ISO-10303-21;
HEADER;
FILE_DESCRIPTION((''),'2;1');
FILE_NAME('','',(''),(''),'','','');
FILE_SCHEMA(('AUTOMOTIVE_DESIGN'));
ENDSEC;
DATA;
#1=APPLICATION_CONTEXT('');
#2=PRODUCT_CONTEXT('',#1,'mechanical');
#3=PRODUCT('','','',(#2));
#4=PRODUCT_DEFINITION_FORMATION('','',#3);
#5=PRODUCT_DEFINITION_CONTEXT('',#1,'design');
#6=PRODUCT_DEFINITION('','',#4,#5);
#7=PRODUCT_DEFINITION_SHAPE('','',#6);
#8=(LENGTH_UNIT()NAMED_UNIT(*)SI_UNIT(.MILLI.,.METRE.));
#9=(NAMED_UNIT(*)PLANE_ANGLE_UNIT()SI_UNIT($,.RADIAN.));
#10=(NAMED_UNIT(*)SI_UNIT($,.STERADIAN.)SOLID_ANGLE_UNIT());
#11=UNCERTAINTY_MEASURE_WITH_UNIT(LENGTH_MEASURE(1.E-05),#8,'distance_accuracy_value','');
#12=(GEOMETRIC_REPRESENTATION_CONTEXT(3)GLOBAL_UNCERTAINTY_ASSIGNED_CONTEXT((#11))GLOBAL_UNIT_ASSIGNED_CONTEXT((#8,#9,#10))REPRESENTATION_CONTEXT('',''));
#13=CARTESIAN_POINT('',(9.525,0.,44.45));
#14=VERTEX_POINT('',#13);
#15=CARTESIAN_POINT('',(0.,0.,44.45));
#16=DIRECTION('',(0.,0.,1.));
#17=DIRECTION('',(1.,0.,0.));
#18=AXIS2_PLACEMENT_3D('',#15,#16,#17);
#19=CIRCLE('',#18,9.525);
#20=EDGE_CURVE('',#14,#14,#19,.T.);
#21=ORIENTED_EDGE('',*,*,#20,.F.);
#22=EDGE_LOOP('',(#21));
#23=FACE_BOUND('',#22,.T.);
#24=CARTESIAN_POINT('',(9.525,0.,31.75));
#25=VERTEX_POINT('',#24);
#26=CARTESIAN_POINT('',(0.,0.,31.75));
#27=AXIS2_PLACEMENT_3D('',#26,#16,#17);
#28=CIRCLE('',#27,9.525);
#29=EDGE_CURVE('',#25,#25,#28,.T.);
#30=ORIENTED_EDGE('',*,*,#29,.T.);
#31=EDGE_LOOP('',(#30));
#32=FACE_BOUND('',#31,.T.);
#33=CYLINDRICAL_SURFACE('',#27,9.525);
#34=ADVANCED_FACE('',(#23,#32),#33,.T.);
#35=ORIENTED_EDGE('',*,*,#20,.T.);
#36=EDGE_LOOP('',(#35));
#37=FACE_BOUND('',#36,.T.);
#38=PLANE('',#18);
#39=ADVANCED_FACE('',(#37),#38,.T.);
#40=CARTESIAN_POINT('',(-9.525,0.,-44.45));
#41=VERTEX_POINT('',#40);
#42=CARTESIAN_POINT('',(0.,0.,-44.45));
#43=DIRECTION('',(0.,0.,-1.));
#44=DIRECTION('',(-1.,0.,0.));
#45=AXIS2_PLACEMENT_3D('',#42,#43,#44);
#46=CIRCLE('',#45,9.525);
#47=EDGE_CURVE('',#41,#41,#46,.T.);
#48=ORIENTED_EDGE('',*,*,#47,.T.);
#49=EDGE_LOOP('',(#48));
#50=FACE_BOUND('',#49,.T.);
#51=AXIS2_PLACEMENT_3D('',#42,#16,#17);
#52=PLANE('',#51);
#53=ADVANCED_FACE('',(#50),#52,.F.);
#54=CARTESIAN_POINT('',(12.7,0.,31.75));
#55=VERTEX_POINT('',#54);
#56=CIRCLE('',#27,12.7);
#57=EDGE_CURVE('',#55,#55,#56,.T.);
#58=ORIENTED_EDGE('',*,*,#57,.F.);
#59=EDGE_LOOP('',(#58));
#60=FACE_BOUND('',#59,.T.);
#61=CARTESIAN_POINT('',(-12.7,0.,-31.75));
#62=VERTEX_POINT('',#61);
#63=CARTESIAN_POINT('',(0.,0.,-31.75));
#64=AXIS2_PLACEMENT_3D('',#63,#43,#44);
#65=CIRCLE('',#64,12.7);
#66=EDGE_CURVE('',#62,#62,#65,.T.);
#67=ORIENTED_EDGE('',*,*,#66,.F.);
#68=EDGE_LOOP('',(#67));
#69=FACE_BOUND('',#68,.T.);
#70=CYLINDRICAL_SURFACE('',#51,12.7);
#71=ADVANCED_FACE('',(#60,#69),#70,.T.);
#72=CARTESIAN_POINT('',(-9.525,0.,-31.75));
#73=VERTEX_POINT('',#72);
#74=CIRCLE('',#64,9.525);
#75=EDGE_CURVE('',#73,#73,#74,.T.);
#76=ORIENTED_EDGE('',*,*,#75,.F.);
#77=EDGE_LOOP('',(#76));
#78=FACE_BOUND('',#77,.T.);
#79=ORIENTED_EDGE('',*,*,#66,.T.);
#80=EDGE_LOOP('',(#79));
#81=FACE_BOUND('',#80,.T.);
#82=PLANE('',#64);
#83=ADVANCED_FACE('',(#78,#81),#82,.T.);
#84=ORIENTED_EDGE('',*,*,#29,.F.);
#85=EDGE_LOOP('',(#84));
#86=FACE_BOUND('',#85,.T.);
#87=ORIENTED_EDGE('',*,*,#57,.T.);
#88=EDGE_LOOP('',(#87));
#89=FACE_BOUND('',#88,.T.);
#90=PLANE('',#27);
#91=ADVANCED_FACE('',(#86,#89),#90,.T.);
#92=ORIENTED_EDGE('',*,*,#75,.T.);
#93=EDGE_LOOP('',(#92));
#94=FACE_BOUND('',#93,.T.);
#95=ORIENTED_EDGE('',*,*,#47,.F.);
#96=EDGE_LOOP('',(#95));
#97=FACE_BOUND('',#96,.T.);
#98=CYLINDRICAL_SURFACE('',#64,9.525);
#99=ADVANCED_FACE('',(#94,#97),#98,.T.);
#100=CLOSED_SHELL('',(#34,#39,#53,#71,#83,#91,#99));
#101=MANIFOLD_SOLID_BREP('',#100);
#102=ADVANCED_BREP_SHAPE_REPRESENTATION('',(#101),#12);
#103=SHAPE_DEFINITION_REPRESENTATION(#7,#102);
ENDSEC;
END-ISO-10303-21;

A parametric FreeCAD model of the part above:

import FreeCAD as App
import Part
import Sketcher

V = App.Vector
Q = App.Units.Quantity

doc = App.newDocument("Part")
params = doc.addObject("Spreadsheet::Sheet", "Params")
for row, (alias, value) in enumerate([
    ("sketch1_diameter", "1 in"),
    ("pad1_length", "3.5 in"),
    ("sketch2_diameter", "1 in"),
    ("sketch2_diameter2", "0.75 in"),
    ("pocket1_length", "0.5 in"),
    ("sketch3_diameter", "1 in"),
    ("sketch3_diameter2", "0.75 in"),
    ("pocket2_length", "0.5 in"),
], start=1):
    params.set(f"A{row}", alias)
    params.set(f"B{row}", "=" + value)
    params.setAlias(f"B{row}", alias)

body = doc.addObject("PartDesign::Body", "Body")

# Sketch on XY plane
sketch1 = doc.addObject("Sketcher::SketchObject", "Sketch")
body.addObject(sketch1)
sketch1.AttachmentSupport = (doc.XY_Plane, [""])
sketch1.MapMode = "FlatFace"
sketch1.AttachmentOffset = App.Placement(V(0, 0, 1.75 * 25.4), App.Rotation())
sketch1.addGeometry(Part.Circle(V(0, 0, 0), V(0, 0, 1), 13), False)
sketch1.addConstraint(Sketcher.Constraint("Coincident", 0, 3, -1, 1))
sketch1.addConstraint(Sketcher.Constraint("Diameter", 0, Q("1 in")))
sketch1.setExpression("Constraints[1]", "Params.sketch1_diameter")
pad1 = doc.addObject("PartDesign::Pad", "Pad")
body.addObject(pad1)
pad1.Profile = sketch1
pad1.setExpression("Length", "Params.pad1_length")
pad1.Reversed = True

# Sketch on XY plane
sketch2 = doc.addObject("Sketcher::SketchObject", "Sketch001")
body.addObject(sketch2)
sketch2.AttachmentSupport = (doc.XY_Plane, [""])
sketch2.MapMode = "FlatFace"
sketch2.AttachmentOffset = App.Placement(V(0, 0, 1.75 * 25.4), App.Rotation())
sketch2.addGeometry(Part.Circle(V(0, 0, 0), V(0, 0, 1), 13), False)
sketch2.addGeometry(Part.Circle(V(0, 0, 0), V(0, 0, 1), 10), False)
sketch2.addConstraint(Sketcher.Constraint("Coincident", 0, 3, -1, 1))
sketch2.addConstraint(Sketcher.Constraint("Coincident", 1, 3, -1, 1))
sketch2.addConstraint(Sketcher.Constraint("Diameter", 0, Q("1 in")))
sketch2.addConstraint(Sketcher.Constraint("Diameter", 1, Q("0.75 in")))
sketch2.setExpression("Constraints[2]", "Params.sketch2_diameter")
sketch2.setExpression("Constraints[3]", "Params.sketch2_diameter2")
pocket1 = doc.addObject("PartDesign::Pocket", "Pocket")
body.addObject(pocket1)
pocket1.Profile = sketch2
pocket1.setExpression("Length", "Params.pocket1_length")

# Sketch on XY plane
sketch3 = doc.addObject("Sketcher::SketchObject", "Sketch002")
body.addObject(sketch3)
sketch3.AttachmentSupport = (doc.XY_Plane, [""])
sketch3.MapMode = "FlatFace"
sketch3.AttachmentOffset = App.Placement(V(0, 0, -1.25 * 25.4), App.Rotation())
sketch3.addGeometry(Part.Circle(V(0, 0, 0), V(0, 0, 1), 13), False)
sketch3.addGeometry(Part.Circle(V(0, 0, 0), V(0, 0, 1), 10), False)
sketch3.addConstraint(Sketcher.Constraint("Coincident", 0, 3, -1, 1))
sketch3.addConstraint(Sketcher.Constraint("Coincident", 1, 3, -1, 1))
sketch3.addConstraint(Sketcher.Constraint("Diameter", 0, Q("1 in")))
sketch3.addConstraint(Sketcher.Constraint("Diameter", 1, Q("0.75 in")))
sketch3.setExpression("Constraints[2]", "Params.sketch3_diameter")
sketch3.setExpression("Constraints[3]", "Params.sketch3_diameter2")
pocket2 = doc.addObject("PartDesign::Pocket", "Pocket001")
body.addObject(pocket2)
pocket2.Profile = sketch3
pocket2.setExpression("Length", "Params.pocket2_length")

doc.recompute()
